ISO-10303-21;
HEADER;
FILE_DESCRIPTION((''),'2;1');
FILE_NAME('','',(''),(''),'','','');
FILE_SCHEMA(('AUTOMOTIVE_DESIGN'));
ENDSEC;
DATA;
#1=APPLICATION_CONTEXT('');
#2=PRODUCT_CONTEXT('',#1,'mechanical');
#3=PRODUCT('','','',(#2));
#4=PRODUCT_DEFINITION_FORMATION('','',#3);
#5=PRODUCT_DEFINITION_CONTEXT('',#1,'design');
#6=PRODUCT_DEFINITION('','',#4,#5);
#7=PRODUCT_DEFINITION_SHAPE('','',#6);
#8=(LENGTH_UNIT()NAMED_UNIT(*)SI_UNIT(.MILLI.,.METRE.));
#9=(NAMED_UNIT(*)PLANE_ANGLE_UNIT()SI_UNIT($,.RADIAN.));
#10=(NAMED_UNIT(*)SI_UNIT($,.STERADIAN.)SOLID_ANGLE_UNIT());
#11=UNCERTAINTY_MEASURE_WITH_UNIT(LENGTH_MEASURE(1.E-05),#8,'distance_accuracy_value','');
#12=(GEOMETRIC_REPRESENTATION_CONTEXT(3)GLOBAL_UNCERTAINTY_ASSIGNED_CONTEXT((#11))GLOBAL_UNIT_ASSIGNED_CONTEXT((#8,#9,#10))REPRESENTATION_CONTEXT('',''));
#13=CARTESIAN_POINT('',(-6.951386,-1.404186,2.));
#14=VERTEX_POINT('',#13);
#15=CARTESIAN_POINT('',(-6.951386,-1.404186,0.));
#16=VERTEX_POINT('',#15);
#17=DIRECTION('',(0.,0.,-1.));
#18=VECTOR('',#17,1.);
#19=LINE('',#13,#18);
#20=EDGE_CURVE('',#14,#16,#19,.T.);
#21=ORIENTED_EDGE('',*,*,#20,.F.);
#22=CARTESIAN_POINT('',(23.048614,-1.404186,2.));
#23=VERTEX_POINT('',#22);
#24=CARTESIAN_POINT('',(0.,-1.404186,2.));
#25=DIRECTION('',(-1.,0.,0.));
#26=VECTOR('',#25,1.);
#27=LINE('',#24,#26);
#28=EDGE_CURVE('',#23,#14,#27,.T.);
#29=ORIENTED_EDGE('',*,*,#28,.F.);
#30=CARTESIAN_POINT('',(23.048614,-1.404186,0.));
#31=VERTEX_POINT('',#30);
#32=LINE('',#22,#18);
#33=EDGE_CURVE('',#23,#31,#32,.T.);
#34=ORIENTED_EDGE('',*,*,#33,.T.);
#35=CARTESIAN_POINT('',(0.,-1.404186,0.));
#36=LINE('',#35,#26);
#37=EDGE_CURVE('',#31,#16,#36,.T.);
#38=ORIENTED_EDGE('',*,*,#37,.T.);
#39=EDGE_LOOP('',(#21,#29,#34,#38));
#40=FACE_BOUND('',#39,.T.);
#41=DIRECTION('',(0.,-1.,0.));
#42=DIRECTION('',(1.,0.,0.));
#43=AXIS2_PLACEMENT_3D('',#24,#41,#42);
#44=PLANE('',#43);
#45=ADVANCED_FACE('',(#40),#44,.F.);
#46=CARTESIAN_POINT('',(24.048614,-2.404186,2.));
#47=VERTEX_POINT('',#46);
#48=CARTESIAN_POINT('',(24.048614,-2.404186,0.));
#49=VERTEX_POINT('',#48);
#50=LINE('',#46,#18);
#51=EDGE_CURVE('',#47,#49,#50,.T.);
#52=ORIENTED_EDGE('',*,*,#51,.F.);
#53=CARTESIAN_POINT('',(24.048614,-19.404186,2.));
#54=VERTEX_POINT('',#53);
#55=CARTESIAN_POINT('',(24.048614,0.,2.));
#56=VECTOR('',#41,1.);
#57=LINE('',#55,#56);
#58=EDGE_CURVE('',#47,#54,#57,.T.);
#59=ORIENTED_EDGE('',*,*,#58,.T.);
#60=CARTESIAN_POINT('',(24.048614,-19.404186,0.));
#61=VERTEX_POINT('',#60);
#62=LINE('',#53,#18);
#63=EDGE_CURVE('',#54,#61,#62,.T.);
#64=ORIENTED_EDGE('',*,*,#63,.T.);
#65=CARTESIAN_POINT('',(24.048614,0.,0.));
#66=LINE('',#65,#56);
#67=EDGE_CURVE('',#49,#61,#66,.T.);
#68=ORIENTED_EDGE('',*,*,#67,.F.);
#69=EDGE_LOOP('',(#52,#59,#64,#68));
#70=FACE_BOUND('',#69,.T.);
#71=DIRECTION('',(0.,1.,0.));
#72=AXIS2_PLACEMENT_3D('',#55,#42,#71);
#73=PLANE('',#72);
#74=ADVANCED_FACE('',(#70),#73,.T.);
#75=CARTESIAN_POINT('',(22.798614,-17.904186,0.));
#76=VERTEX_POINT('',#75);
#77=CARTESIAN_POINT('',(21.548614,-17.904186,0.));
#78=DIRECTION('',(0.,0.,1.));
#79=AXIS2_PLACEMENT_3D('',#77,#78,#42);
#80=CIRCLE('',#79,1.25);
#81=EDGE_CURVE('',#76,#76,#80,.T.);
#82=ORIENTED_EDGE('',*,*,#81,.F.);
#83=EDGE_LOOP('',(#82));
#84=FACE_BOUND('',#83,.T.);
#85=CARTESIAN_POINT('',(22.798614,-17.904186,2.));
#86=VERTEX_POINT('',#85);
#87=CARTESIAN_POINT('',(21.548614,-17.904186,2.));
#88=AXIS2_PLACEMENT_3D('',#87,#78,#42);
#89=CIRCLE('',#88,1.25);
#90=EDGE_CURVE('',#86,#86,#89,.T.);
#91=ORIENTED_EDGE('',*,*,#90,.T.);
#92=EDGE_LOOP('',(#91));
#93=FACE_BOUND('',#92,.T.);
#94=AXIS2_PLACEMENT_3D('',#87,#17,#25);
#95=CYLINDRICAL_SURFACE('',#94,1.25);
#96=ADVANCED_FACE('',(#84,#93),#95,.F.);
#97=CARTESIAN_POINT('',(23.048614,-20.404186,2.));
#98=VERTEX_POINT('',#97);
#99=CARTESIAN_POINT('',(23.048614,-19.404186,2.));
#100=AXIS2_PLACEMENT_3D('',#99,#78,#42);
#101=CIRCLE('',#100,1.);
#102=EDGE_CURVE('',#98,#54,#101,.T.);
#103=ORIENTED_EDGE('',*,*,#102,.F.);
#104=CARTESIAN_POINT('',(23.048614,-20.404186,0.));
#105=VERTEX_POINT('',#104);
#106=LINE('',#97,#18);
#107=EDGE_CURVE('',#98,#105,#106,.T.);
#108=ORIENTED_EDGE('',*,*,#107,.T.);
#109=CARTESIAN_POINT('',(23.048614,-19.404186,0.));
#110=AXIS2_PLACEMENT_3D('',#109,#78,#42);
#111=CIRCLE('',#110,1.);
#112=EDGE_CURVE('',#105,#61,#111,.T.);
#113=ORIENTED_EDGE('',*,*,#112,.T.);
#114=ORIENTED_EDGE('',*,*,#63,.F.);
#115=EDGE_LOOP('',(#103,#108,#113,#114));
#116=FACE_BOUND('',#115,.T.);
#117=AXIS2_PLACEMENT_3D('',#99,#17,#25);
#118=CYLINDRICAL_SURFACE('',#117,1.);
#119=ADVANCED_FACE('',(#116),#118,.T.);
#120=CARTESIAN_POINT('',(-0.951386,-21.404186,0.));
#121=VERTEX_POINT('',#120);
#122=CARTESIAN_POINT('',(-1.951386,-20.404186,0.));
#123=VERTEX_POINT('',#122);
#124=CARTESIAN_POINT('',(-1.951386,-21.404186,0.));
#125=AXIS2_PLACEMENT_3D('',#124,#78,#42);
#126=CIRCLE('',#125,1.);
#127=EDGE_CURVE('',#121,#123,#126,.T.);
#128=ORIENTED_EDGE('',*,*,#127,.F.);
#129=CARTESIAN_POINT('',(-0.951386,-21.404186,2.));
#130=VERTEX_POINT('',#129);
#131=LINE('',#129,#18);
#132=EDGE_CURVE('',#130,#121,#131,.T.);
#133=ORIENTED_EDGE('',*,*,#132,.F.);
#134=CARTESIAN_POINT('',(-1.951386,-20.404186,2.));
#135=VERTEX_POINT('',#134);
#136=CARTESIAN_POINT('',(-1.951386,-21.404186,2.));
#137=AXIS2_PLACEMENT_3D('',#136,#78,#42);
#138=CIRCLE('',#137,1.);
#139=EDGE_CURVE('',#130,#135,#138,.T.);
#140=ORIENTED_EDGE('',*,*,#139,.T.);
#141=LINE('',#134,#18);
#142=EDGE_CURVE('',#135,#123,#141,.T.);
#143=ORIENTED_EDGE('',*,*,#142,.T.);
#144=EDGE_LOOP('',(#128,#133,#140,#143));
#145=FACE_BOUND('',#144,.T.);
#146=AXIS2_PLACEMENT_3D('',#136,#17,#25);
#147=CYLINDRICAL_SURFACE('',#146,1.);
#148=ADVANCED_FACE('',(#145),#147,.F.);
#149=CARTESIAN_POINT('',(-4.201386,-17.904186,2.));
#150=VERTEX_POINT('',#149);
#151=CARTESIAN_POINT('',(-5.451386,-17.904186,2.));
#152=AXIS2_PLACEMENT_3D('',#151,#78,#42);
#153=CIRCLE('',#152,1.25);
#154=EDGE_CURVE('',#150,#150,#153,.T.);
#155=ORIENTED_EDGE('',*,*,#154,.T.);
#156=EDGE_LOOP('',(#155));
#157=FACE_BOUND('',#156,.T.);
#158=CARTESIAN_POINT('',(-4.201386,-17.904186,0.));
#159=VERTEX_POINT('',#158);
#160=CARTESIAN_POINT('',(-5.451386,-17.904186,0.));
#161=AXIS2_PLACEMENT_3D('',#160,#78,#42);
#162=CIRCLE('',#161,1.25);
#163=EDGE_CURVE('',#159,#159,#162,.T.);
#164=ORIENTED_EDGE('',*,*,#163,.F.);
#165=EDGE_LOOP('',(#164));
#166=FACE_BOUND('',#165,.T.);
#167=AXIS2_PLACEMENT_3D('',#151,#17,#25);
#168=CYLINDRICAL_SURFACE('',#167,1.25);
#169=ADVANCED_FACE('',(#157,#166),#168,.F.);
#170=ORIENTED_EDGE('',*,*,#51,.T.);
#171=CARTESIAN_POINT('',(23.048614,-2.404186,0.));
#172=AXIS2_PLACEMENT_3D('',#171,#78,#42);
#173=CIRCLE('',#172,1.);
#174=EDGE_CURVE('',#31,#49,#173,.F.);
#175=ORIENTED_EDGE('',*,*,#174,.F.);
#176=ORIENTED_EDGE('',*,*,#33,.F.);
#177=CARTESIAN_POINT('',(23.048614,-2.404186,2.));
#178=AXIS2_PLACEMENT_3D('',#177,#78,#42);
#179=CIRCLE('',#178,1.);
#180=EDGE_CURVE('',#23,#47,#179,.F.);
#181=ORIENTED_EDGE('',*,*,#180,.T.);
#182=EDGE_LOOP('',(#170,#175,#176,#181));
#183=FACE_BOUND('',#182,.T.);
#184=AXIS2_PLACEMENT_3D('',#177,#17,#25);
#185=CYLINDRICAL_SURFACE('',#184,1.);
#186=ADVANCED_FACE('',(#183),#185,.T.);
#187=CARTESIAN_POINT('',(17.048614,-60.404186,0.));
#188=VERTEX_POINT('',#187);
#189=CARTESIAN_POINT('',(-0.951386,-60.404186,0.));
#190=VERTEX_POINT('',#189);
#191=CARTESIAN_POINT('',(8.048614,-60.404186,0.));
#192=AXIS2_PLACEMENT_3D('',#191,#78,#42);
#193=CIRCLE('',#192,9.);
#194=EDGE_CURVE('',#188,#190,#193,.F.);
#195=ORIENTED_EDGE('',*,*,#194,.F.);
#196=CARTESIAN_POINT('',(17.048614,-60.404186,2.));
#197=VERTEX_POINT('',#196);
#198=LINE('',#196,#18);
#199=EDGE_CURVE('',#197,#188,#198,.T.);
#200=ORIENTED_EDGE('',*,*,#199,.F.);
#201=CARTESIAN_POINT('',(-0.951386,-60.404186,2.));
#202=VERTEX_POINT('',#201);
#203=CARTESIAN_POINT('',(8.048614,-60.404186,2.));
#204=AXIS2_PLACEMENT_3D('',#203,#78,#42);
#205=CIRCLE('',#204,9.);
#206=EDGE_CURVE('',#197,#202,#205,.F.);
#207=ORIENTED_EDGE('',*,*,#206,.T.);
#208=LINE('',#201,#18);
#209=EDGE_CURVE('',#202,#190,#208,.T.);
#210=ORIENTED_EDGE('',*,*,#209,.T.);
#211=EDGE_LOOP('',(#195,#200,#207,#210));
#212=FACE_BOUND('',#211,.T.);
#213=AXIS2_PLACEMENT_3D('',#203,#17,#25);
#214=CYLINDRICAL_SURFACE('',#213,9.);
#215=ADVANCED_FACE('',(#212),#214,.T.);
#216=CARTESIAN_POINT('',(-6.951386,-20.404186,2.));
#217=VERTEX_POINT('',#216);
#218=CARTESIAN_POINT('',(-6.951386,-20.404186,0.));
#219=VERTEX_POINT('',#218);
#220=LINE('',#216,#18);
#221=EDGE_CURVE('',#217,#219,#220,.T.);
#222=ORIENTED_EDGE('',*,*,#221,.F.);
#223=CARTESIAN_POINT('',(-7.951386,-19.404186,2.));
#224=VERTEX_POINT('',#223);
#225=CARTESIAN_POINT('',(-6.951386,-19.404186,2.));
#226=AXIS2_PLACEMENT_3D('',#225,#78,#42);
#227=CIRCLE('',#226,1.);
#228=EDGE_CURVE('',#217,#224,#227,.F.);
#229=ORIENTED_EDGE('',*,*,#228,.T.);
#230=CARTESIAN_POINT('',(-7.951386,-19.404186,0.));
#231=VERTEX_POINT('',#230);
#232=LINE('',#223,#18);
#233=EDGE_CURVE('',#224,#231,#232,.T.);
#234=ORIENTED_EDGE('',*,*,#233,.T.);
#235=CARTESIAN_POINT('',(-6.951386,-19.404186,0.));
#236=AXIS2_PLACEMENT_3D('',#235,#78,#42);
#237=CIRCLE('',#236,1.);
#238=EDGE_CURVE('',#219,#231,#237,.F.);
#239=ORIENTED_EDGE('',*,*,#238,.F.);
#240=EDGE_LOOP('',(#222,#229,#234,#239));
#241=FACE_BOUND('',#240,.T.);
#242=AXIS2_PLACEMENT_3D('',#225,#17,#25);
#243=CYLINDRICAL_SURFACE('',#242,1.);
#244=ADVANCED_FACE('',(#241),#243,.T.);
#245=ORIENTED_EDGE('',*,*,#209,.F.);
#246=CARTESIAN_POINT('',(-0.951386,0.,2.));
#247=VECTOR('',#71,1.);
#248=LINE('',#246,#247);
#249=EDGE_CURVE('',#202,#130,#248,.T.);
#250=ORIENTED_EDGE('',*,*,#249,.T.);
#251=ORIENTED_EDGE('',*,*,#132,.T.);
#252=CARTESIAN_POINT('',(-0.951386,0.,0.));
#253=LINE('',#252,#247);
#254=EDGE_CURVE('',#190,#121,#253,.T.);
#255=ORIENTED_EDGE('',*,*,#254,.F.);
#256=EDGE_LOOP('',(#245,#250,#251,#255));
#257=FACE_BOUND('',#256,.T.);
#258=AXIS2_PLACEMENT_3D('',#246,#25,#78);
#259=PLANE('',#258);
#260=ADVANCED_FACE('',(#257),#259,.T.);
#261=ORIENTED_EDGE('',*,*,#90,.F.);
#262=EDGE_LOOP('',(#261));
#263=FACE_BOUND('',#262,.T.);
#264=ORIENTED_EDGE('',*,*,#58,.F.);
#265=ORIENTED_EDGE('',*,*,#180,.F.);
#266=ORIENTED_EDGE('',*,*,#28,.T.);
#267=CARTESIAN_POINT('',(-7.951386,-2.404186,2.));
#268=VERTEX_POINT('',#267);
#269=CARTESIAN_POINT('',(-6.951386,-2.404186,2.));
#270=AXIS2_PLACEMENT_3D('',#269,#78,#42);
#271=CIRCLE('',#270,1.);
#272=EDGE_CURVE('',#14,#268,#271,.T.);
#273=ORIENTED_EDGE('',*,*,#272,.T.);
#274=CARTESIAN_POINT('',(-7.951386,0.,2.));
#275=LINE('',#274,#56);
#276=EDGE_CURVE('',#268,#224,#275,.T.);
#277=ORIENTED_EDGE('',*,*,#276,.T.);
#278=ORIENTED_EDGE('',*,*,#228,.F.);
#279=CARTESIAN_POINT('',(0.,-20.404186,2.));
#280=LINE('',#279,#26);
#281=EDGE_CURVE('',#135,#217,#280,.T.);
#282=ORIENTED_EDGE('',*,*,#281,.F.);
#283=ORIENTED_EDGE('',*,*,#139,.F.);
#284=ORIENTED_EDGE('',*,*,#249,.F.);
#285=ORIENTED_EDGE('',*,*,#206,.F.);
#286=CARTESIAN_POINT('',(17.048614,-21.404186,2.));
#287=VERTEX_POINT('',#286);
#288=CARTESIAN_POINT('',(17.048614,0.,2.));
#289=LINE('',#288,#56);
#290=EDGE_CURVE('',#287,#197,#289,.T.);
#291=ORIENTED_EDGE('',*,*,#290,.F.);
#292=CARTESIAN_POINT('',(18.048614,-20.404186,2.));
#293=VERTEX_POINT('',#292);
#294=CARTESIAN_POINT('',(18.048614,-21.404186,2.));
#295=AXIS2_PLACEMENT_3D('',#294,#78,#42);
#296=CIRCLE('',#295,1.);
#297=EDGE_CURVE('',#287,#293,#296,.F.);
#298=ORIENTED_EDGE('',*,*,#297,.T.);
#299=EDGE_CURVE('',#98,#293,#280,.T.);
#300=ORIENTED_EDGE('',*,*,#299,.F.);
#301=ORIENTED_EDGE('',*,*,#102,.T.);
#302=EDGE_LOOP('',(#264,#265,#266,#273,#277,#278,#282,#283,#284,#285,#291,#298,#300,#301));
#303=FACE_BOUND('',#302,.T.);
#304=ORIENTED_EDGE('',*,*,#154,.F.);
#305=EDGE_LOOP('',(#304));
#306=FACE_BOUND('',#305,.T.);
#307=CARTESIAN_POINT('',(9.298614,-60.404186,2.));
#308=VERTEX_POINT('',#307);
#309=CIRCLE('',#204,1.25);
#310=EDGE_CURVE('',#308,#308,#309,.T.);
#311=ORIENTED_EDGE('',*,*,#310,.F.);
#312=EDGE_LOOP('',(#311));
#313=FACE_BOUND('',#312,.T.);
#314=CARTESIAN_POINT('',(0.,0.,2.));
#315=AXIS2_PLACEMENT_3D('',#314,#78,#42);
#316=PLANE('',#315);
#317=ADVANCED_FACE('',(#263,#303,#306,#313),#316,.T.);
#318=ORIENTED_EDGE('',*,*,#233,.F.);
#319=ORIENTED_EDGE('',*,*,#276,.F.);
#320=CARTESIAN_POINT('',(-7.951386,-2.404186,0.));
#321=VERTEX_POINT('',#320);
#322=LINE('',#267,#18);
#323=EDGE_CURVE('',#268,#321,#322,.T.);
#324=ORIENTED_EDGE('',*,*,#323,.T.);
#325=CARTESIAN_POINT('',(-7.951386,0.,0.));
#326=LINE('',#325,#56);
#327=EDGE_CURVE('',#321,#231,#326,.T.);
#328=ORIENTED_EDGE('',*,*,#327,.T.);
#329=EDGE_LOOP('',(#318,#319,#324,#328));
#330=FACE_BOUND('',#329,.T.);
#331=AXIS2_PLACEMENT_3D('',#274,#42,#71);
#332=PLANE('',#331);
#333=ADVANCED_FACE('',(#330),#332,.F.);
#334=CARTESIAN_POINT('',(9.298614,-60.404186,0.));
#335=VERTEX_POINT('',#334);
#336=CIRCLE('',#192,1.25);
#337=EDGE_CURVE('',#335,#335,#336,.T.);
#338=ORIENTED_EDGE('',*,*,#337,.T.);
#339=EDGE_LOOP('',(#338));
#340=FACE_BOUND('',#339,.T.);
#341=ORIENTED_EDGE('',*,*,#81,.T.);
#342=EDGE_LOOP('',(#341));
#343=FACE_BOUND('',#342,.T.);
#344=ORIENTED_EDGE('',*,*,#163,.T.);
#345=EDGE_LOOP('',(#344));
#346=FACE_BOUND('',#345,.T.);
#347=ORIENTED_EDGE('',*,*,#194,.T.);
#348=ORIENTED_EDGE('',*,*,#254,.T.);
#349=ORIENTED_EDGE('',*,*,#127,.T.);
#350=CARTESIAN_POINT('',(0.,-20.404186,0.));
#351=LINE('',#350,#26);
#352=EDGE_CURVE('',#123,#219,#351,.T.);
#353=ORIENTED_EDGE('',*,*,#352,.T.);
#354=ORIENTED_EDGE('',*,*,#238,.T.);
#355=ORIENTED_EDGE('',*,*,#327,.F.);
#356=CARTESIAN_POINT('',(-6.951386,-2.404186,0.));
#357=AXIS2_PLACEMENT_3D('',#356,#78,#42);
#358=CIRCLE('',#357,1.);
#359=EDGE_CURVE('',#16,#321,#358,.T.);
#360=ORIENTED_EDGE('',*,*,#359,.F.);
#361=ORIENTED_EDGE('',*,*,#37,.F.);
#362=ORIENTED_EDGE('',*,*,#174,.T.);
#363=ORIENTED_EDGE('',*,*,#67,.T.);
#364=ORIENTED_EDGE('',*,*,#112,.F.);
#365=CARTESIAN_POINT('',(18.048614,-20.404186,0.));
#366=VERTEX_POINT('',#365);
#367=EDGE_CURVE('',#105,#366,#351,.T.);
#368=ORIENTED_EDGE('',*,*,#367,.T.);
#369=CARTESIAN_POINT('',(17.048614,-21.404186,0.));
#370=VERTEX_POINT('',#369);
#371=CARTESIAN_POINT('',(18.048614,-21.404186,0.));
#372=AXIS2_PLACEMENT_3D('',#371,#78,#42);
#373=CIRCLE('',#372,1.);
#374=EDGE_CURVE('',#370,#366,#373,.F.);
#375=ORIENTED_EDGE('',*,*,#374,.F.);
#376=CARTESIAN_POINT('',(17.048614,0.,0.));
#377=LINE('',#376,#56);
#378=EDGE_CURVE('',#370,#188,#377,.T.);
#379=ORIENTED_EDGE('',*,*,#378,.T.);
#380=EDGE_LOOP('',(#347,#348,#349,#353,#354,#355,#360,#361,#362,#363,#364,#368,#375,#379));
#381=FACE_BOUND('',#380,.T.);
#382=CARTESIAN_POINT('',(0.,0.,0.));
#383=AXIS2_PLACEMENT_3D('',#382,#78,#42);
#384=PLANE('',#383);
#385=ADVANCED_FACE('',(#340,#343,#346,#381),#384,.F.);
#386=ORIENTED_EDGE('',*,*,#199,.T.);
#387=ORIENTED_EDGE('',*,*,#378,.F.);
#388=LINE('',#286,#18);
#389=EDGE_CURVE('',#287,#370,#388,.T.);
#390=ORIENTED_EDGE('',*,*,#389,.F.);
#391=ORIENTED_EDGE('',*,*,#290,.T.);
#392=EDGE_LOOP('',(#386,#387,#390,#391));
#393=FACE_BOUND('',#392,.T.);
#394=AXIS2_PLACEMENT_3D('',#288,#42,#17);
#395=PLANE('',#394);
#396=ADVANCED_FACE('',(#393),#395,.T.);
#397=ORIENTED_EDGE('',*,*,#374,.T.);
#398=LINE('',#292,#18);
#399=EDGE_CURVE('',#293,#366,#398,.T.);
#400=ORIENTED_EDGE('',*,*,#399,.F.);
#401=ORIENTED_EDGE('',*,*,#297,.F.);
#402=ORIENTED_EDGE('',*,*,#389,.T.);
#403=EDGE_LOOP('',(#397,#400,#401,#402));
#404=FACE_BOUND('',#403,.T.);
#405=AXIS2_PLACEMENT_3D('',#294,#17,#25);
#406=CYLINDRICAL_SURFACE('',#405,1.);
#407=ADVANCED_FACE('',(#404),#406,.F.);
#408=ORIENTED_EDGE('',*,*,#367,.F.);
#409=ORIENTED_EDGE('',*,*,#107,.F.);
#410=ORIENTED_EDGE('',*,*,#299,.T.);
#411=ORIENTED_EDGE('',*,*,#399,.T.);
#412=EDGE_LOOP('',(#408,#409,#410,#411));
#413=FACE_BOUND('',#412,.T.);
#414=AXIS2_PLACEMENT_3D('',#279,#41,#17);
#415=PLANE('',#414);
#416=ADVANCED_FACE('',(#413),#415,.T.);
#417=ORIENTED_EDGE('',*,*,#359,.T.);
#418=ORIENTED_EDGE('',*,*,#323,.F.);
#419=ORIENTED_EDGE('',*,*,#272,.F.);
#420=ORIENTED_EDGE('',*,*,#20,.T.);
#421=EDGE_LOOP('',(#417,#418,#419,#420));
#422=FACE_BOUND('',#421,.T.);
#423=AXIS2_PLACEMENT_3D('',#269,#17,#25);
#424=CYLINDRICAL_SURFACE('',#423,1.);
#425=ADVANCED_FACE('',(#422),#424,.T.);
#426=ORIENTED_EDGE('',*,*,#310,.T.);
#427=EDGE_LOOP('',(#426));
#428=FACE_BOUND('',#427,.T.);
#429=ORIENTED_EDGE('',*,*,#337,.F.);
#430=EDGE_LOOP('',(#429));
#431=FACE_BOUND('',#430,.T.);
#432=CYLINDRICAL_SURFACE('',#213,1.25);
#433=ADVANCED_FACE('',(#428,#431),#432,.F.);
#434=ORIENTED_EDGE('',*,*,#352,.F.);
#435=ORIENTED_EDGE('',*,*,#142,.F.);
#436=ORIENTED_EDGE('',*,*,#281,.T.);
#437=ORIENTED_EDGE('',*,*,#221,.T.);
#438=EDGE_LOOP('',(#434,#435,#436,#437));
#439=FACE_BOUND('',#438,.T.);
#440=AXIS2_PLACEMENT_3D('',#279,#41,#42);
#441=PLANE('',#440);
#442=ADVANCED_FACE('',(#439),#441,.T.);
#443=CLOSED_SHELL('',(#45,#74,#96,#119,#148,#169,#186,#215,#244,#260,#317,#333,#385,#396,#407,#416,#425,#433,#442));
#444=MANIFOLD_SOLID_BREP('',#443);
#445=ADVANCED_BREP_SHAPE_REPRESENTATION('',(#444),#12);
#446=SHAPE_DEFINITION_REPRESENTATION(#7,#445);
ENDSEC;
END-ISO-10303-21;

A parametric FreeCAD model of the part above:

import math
import FreeCAD as App
import Part
import Sketcher
from FreeCAD import Vector

doc = App.newDocument("Part")
params = doc.addObject("Spreadsheet::Sheet", "Params")
for row, (alias, value) in enumerate([
    ("sketch1_radius", "1 mm"),
    ("sketch1_radius2", "9 mm"),
    ("sketch1_diameter", "2.5 mm"),
    ("sketch1_width", "5 mm"),
    ("sketch1_height", "17 mm"),
    ("pad1_length", "2 mm"),
], start=1):
    params.set(f"A{row}", alias)
    params.set(f"B{row}", "=" + value)
    params.setAlias(f"B{row}", alias)

body = doc.addObject("PartDesign::Body", "Body")

# Sketch on XY plane
sketch1 = body.newObject("Sketcher::SketchObject", "Sketch")
sketch1.AttachmentSupport = (doc.getObject("XY_Plane"), [""])
sketch1.MapMode = "FlatFace"
sketch1.addGeometry([
    Part.LineSegment(Vector(18, -20.4, 0), Vector(23, -20.4, 0)),  # 0
    Part.ArcOfCircle(Part.Circle(Vector(23, -19.4, 0), Vector(0, 0, 1), 1), math.radians(-90), math.radians(0)),  # 1
    Part.LineSegment(Vector(24, -19.4, 0), Vector(24, -2.4, 0)),  # 2
    Part.ArcOfCircle(Part.Circle(Vector(23, -2.4, 0), Vector(0, 0, 1), 1), math.radians(0), math.radians(90)),  # 3
    Part.LineSegment(Vector(23, -1.4, 0), Vector(-7, -1.4, 0)),  # 4
    Part.ArcOfCircle(Part.Circle(Vector(-7, -2.4, 0), Vector(0, 0, 1), 1), math.radians(90), math.radians(180)),  # 5
    Part.LineSegment(Vector(-8, -2.4, 0), Vector(-8, -19.4, 0)),  # 6
    Part.ArcOfCircle(Part.Circle(Vector(-7, -19.4, 0), Vector(0, 0, 1), 1), math.radians(-180), math.radians(-90)),  # 7
    Part.LineSegment(Vector(-7, -20.4, 0), Vector(-2, -20.4, 0)),  # 8
    Part.ArcOfCircle(Part.Circle(Vector(-2, -21.4, 0), Vector(0, 0, 1), 1), math.radians(0), math.radians(90)),  # 9
    Part.LineSegment(Vector(-1, -21.4, 0), Vector(-1, -60.4, 0)),  # 10
    Part.ArcOfCircle(Part.Circle(Vector(8, -60.4, 0), Vector(0, 0, 1), 9), math.radians(180), math.radians(360)),  # 11
    Part.LineSegment(Vector(17, -60.4, 0), Vector(17, -21.4, 0)),  # 12
    Part.ArcOfCircle(Part.Circle(Vector(18, -21.4, 0), Vector(0, 0, 1), 1), math.radians(90), math.radians(180)),  # 13
    Part.Circle(Vector(8, -60.4, 0), Vector(0, 0, 1), 1.2),  # 14
    Part.Circle(Vector(-5.5, -17.9, 0), Vector(0, 0, 1), 1.2),  # 15
    Part.Circle(Vector(21.5, -17.9, 0), Vector(0, 0, 1), 1.2),  # 16
], False)
sketch1.addConstraint([
    Sketcher.Constraint("Tangent", 0, 2, 1, 1),
    Sketcher.Constraint("Tangent", 1, 2, 2, 1),
    Sketcher.Constraint("Tangent", 2, 2, 3, 1),
    Sketcher.Constraint("Tangent", 3, 2, 4, 1),
    Sketcher.Constraint("Tangent", 4, 2, 5, 1),
    Sketcher.Constraint("Tangent", 5, 2, 6, 1),
    Sketcher.Constraint("Tangent", 6, 2, 7, 1),
    Sketcher.Constraint("Tangent", 7, 2, 8, 1),
    Sketcher.Constraint("Tangent", 8, 2, 9, 2),
    Sketcher.Constraint("Tangent", 9, 1, 10, 1),
    Sketcher.Constraint("Tangent", 10, 2, 11, 1),
    Sketcher.Constraint("Tangent", 11, 2, 12, 1),
    Sketcher.Constraint("Tangent", 12, 2, 13, 2),
    Sketcher.Constraint("Tangent", 13, 1, 0, 1),
    Sketcher.Constraint("Horizontal", 0),
    Sketcher.Constraint("Vertical", 2),
    Sketcher.Constraint("Horizontal", 4),
    Sketcher.Constraint("Vertical", 6),
    Sketcher.Constraint("Horizontal", 8),
    Sketcher.Constraint("Vertical", 10),
    Sketcher.Constraint("Vertical", 12),
    Sketcher.Constraint("Coincident", 14, 3, 11, 3),
    Sketcher.Constraint("Equal", 1, 3),
    Sketcher.Constraint("Equal", 3, 5),
    Sketcher.Constraint("Equal", 5, 7),
    Sketcher.Constraint("Equal", 7, 9),
    Sketcher.Constraint("Equal", 9, 13),
    Sketcher.Constraint("Equal", 14, 15),
    Sketcher.Constraint("Equal", 15, 16),
    Sketcher.Constraint("Horizontal", 1, 3, 7, 3),
    Sketcher.Constraint("Horizontal", 15, 3, 16, 3),
    Sketcher.Constraint("Equal", 0, 8),
    Sketcher.Constraint("Radius", 1, 1.0),
    Sketcher.Constraint("Radius", 11, 9.0),
    Sketcher.Constraint("Diameter", 14, 2.5),
    Sketcher.Constraint("DistanceX", 0, 1, 0, 2, 5.0),
    Sketcher.Constraint("DistanceY", 2, 1, 2, 2, 17.0),
    Sketcher.Constraint("DistanceY", 10, 2, 10, 1, 39.0),
    Sketcher.Constraint("DistanceX", 15, 3, 16, 3, 27.0),
    Sketcher.Constraint("DistanceX", 7, 3, 15, 3, 1.5),
    Sketcher.Constraint("DistanceY", 7, 3, 15, 3, 1.5),
    Sketcher.Constraint("DistanceX", -1, 1, 1, 3, 23.048614),
    Sketcher.Constraint("DistanceY", 1, 3, -1, 1, 19.404186),
])
sketch1.setExpression("Constraints[32]", "Params.sketch1_radius")
sketch1.setExpression("Constraints[33]", "Params.sketch1_radius2")
sketch1.setExpression("Constraints[34]", "Params.sketch1_diameter")
sketch1.setExpression("Constraints[35]", "Params.sketch1_width")
sketch1.setExpression("Constraints[36]", "Params.sketch1_height")
pad1 = body.newObject("PartDesign::Pad", "Pad")
pad1.Profile = sketch1
pad1.setExpression("Length", "Params.pad1_length")

doc.recompute()
